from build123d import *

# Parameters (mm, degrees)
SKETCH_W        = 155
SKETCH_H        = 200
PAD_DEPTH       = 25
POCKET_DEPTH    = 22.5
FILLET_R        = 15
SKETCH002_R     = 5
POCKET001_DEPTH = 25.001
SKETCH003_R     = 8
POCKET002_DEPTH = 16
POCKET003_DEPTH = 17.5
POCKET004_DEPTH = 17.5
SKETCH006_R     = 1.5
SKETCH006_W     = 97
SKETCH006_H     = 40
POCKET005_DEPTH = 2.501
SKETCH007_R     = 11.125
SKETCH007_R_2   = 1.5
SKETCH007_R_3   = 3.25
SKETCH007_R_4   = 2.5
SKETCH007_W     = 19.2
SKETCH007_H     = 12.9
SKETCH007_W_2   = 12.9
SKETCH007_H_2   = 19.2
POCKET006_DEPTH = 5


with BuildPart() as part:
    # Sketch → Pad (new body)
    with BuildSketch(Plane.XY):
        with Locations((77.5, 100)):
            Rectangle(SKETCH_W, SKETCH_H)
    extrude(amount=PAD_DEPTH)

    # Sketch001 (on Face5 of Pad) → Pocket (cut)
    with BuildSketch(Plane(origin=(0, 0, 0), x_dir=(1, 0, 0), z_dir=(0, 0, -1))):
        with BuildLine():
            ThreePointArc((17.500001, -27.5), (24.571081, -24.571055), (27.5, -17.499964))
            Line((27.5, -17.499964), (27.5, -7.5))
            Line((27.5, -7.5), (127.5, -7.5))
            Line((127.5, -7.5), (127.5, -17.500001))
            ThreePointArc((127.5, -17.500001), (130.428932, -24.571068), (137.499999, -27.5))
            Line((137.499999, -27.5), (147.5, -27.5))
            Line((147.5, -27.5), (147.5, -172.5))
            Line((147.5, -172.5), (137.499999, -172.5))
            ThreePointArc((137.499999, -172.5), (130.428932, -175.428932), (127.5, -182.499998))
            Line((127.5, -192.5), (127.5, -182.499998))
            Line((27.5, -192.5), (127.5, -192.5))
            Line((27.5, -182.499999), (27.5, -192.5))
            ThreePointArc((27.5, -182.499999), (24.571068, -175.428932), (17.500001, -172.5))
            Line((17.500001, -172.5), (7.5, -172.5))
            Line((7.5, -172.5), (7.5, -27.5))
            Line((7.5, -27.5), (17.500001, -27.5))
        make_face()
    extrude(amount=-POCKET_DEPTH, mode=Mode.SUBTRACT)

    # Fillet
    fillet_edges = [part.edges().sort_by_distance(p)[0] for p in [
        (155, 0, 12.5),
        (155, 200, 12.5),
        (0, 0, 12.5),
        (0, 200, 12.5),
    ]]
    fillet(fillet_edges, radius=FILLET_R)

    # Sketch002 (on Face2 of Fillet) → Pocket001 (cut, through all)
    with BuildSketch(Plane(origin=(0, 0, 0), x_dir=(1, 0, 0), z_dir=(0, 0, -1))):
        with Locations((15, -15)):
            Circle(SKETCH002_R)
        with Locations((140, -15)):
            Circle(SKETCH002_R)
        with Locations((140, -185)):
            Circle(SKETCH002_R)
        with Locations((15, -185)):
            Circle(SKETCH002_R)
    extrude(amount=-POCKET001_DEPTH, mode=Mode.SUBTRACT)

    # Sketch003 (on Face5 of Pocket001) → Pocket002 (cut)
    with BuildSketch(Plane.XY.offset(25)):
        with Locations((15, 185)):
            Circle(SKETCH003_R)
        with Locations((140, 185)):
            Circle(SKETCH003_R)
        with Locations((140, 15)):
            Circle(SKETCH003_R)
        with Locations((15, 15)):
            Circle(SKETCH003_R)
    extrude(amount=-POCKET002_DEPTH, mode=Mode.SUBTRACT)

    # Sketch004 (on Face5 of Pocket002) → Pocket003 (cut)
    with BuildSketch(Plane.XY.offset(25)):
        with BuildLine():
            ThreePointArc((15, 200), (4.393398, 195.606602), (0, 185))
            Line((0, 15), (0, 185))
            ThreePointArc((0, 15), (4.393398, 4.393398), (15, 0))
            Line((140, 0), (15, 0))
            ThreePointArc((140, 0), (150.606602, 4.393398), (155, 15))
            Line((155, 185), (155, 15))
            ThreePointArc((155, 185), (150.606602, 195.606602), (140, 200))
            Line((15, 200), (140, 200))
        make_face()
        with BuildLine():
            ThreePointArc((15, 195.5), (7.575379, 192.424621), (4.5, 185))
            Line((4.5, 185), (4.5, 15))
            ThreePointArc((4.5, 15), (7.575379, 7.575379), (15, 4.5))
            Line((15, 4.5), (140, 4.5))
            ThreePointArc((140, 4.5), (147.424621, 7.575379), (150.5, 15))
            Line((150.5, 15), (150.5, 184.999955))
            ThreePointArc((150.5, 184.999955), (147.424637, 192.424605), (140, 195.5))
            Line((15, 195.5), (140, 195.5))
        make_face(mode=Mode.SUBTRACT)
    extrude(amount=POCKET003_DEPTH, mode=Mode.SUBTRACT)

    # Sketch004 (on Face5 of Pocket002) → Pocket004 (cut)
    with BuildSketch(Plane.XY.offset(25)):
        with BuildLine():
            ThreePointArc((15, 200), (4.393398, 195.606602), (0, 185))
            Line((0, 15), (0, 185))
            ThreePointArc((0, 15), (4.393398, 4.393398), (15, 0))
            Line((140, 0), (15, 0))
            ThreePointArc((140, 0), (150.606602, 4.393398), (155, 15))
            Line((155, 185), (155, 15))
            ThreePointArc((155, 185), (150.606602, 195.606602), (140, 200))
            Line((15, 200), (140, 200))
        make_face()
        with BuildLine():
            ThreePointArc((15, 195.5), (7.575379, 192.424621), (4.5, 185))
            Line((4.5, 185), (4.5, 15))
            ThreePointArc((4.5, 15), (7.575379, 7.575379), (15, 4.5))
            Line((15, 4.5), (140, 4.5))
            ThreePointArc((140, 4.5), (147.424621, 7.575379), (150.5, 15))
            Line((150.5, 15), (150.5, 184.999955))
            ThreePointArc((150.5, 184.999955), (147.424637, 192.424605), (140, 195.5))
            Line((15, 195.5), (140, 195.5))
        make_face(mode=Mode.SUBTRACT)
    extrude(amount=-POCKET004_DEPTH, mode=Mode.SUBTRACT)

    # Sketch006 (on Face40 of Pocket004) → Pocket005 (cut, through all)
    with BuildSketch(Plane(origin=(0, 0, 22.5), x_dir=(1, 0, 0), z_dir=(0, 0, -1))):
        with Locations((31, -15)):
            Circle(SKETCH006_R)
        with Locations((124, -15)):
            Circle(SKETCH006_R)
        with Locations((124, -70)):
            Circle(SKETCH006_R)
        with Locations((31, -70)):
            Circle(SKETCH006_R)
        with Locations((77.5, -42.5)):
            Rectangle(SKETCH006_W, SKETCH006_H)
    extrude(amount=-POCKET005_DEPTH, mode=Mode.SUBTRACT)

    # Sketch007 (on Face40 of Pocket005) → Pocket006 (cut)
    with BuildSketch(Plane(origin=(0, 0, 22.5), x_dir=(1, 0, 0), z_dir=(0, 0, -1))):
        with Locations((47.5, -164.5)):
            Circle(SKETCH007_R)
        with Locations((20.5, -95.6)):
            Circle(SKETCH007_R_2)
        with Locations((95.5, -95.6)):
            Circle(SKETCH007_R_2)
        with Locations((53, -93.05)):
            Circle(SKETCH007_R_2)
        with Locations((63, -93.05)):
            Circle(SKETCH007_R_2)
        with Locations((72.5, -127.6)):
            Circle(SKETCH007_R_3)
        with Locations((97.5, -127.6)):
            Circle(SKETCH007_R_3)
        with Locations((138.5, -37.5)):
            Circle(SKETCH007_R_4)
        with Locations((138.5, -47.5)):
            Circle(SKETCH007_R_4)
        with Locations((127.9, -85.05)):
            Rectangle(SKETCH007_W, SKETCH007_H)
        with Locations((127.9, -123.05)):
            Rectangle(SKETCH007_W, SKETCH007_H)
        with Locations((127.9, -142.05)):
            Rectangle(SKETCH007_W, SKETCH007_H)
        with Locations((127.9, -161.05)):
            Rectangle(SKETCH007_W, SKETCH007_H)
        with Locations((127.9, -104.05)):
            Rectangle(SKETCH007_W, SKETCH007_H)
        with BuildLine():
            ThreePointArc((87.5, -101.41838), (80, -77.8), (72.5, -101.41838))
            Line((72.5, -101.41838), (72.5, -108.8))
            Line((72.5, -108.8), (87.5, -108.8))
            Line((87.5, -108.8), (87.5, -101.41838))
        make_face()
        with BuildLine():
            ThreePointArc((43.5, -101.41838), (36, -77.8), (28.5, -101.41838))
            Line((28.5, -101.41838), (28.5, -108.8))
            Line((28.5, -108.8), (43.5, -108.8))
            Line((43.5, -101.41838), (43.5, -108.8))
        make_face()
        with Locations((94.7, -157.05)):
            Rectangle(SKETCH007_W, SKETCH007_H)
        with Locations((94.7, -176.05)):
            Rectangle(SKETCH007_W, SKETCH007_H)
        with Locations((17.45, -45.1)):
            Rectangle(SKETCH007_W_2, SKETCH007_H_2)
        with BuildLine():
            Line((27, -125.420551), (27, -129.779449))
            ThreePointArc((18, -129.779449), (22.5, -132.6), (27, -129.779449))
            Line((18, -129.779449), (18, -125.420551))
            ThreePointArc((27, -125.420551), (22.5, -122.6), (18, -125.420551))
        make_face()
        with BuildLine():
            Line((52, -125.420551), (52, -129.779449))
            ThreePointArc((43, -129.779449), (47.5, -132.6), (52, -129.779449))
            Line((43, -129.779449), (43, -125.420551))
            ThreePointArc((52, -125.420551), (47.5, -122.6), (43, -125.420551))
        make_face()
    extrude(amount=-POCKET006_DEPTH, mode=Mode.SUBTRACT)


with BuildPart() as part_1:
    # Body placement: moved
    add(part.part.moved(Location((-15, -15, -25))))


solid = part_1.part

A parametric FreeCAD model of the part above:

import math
import FreeCAD as App
import Part
import Sketcher
from FreeCAD import Vector


def edges_at(feature, points):
    """Names of the edges that pass closest to the given points."""
    edges = feature.Shape.Edges
    near = lambda p: min(range(len(edges)), key=lambda i: edges[i].distToShape(Part.Vertex(*p))[0])
    return sorted({f"Edge{near(p) + 1}" for p in points})


def add_polygon(sketch, points):
    """Adds a closed chain of lines whose ends are joined by coincident constraints."""
    first, n = sketch.GeometryCount, len(points)
    for a, b in zip(points, points[1:] + points[:1]):
        sketch.addGeometry(Part.LineSegment(App.Vector(*a, 0), App.Vector(*b, 0)), False)
    for i in range(n):
        sketch.addConstraint(Sketcher.Constraint("Coincident", first + i, 2, first + (i + 1) % n, 1))

doc = App.newDocument("Part")
params = doc.addObject("Spreadsheet::Sheet", "Params")
for row, (alias, value) in enumerate([
    ("sketch1_width", "155 mm"),
    ("sketch1_height", "200 mm"),
    ("pad1_length", "25 mm"),
    ("sketch2_radius", "9.999999 mm"),
    ("sketch2_width", "10.000001 mm"),
    ("sketch2_width2", "100 mm"),
    ("sketch2_height", "145 mm"),
    ("pocket1_length", "22.5 mm"),
    ("fillet_radius", "15 mm"),
    ("sketch3_diameter", "10 mm"),
    ("sketch4_diameter", "16 mm"),
    ("pocket3_length", "16 mm"),
    ("sketch5_radius", "14.999999 mm"),
    ("sketch5_radius2", "10.500001 mm"),
    ("sketch5_width", "125 mm"),
    ("sketch5_height", "170 mm"),
    ("pocket4_length", "17.5 mm"),
    ("sketch6_radius", "14.999999 mm"),
    ("sketch6_radius2", "10.500001 mm"),
    ("sketch6_width", "125 mm"),
    ("sketch6_height", "170 mm"),
    ("pocket5_length", "17.5 mm"),
    ("sketch7_diameter", "3 mm"),
    ("sketch7_width", "97 mm"),
    ("sketch7_height", "40 mm"),
    ("sketch8_diameter", "3 mm"),
    ("sketch8_diameter2", "5 mm"),
    ("sketch8_radius", "13 mm"),
    ("sketch8_radius2", "5 mm"),
    ("sketch8_diameter3", "6.5 mm"),
    ("pocket7_length", "5 mm"),
], start=1):
    params.set(f"A{row}", alias)
    params.set(f"B{row}", "=" + value)
    params.setAlias(f"B{row}", alias)

body = doc.addObject("PartDesign::Body", "Body")

# Sketch on XY plane
sketch1 = body.newObject("Sketcher::SketchObject", "Sketch")
sketch1.AttachmentSupport = (doc.getObject("XY_Plane"), [""])
sketch1.MapMode = "FlatFace"
add_polygon(sketch1, [(0, 200), (0, 0), (155, 0), (155, 200)])  # lines 0-3
sketch1.addConstraint([
    Sketcher.Constraint("Vertical", 0),
    Sketcher.Constraint("Horizontal", 1),
    Sketcher.Constraint("Vertical", 2),
    Sketcher.Constraint("Horizontal", 3),
    Sketcher.Constraint("Coincident", 0, 2, -1, 1),
    Sketcher.Constraint("DistanceX", 1, 1, 1, 2, 155.0),
    Sketcher.Constraint("DistanceY", 0, 2, 0, 1, 200.0),
])
sketch1.setExpression("Constraints[9]", "Params.sketch1_width")
sketch1.setExpression("Constraints[10]", "Params.sketch1_height")
pad1 = body.newObject("PartDesign::Pad", "Pad")
pad1.Profile = sketch1
pad1.setExpression("Length", "Params.pad1_length")

# Sketch on XY plane
sketch2 = body.newObject("Sketcher::SketchObject", "Sketch001")
sketch2.AttachmentSupport = (doc.getObject("XY_Plane"), [""])
sketch2.MapMode = "FlatFace"
sketch2.addGeometry([
    Part.ArcOfCircle(Part.Circle(Vector(18, 18, 0), Vector(0, 0, 1), 10), math.radians(0), math.radians(90)),  # 0
    Part.LineSegment(Vector(18, 28, 0), Vector(8, 28, 0)),  # 1
    Part.LineSegment(Vector(8, 28, 0), Vector(8, 172, 0)),  # 2
    Part.LineSegment(Vector(8, 172, 0), Vector(18, 172, 0)),  # 3
    Part.ArcOfCircle(Part.Circle(Vector(18, 182, 0), Vector(0, 0, 1), 10), math.radians(-90), math.radians(0)),  # 4
    Part.LineSegment(Vector(28, 182, 0), Vector(28, 192, 0)),  # 5
    Part.LineSegment(Vector(28, 192, 0), Vector(128, 192, 0)),  # 6
    Part.LineSegment(Vector(128, 192, 0), Vector(128, 182, 0)),  # 7
    Part.ArcOfCircle(Part.Circle(Vector(137, 182, 0), Vector(0, 0, 1), 10), math.radians(-180), math.radians(-90)),  # 8
    Part.LineSegment(Vector(137, 172, 0), Vector(148, 172, 0)),  # 9
    Part.LineSegment(Vector(148, 172, 0), Vector(148, 28, 0)),  # 10
    Part.LineSegment(Vector(148, 28, 0), Vector(137, 28, 0)),  # 11
    Part.ArcOfCircle(Part.Circle(Vector(137, 18, 0), Vector(0, 0, 1), 10), math.radians(90), math.radians(180)),  # 12
    Part.LineSegment(Vector(128, 18, 0), Vector(128, 8, 0)),  # 13
    Part.LineSegment(Vector(128, 8, 0), Vector(28, 8, 0)),  # 14
    Part.LineSegment(Vector(28, 8, 0), Vector(28, 17, 0)),  # 15
], False)
sketch2.addConstraint([
    Sketcher.Constraint("Tangent", 0, 2, 1, 1),
    Sketcher.Constraint("Coincident", 1, 2, 2, 1),
    Sketcher.Constraint("Coincident", 2, 2, 3, 1),
    Sketcher.Constraint("Tangent", 3, 2, 4, 1),
    Sketcher.Constraint("Tangent", 4, 2, 5, 1),
    Sketcher.Constraint("Coincident", 5, 2, 6, 1),
    Sketcher.Constraint("Coincident", 6, 2, 7, 1),
    Sketcher.Constraint("Tangent", 7, 2, 8, 1),
    Sketcher.Constraint("Tangent", 8, 2, 9, 1),
    Sketcher.Constraint("Coincident", 9, 2, 10, 1),
    Sketcher.Constraint("Coincident", 10, 2, 11, 1),
    Sketcher.Constraint("Tangent", 11, 2, 12, 1),
    Sketcher.Constraint("Tangent", 12, 2, 13, 1),
    Sketcher.Constraint("Coincident", 13, 2, 14, 1),
    Sketcher.Constraint("Coincident", 14, 2, 15, 1),
    Sketcher.Constraint("Coincident", 15, 2, 0, 1),
    Sketcher.Constraint("Horizontal", 1),
    Sketcher.Constraint("Vertical", 2),
    Sketcher.Constraint("Horizontal", 3),
    Sketcher.Constraint("Vertical", 5),
    Sketcher.Constraint("Horizontal", 6),
    Sketcher.Constraint("Vertical", 7),
    Sketcher.Constraint("Horizontal", 9),
    Sketcher.Constraint("Vertical", 10),
    Sketcher.Constraint("Horizontal", 11),
    Sketcher.Constraint("Vertical", 13),
    Sketcher.Constraint("Horizontal", 14),
    Sketcher.Constraint("Vertical", 15),
    Sketcher.Constraint("Equal", 0, 4),
    Sketcher.Constraint("Equal", 4, 8),
    Sketcher.Constraint("Equal", 8, 12),
    Sketcher.Constraint("Horizontal", 4, 3, 8, 3),
    Sketcher.Constraint("Horizontal", 0, 3, 12, 3),
    Sketcher.Constraint("Vertical", 0, 3, 4, 3),
    Sketcher.Constraint("Vertical", 8, 3, 12, 3),
    Sketcher.Constraint("Equal", 3, 9),
    Sketcher.Constraint("Equal", 11, 5),
    Sketcher.Constraint("Equal", 7, 13),
    Sketcher.Constraint("Radius", 0, 9.999999),
    Sketcher.Constraint("DistanceX", 1, 2, 1, 1, 10.000001),
    Sketcher.Constraint("DistanceX", 6, 1, 6, 2, 100.0),
    Sketcher.Constraint("DistanceY", 2, 1, 2, 2, 145.0),
    Sketcher.Constraint("DistanceX", -1, 1, 0, 3, 17.500001),
    Sketcher.Constraint("DistanceY", -1, 1, 0, 3, 17.500001),
    Sketcher.Constraint("DistanceY", 15, 1, 15, 2, 9.999964),
])
sketch2.setExpression("Constraints[38]", "Params.sketch2_radius")
sketch2.setExpression("Constraints[39]", "Params.sketch2_width")
sketch2.setExpression("Constraints[40]", "Params.sketch2_width2")
sketch2.setExpression("Constraints[41]", "Params.sketch2_height")
pocket1 = body.newObject("PartDesign::Pocket", "Pocket")
pocket1.Profile = sketch2
pocket1.setExpression("Length", "Params.pocket1_length")
pocket1.Reversed = True
doc.recompute()

fillet = body.newObject("PartDesign::Fillet", "Fillet")
fillet.Base = (pocket1, edges_at(pocket1, [
    (155, 0, 12.5),
    (155, 200, 12.5),
    (0, 0, 12.5),
    (0, 200, 12.5),
]))
fillet.setExpression("Radius", "Params.fillet_radius")

# Sketch on XY plane
sketch3 = body.newObject("Sketcher::SketchObject", "Sketch002")
sketch3.AttachmentSupport = (doc.getObject("XY_Plane"), [""])
sketch3.MapMode = "FlatFace"
sketch3.addGeometry([
    Part.Circle(Vector(15, 15, 0), Vector(0, 0, 1), 5),
    Part.Circle(Vector(140, 15, 0), Vector(0, 0, 1), 5),
    Part.Circle(Vector(140, 185, 0), Vector(0, 0, 1), 5),
    Part.Circle(Vector(15, 185, 0), Vector(0, 0, 1), 5),
], False)
sketch3.addConstraint([
    Sketcher.Constraint("Equal", 0, 1),
    Sketcher.Constraint("Equal", 1, 2),
    Sketcher.Constraint("Equal", 2, 3),
    Sketcher.Constraint("Horizontal", 0, 3, 1, 3),
    Sketcher.Constraint("Horizontal", 2, 3, 3, 3),
    Sketcher.Constraint("Vertical", 1, 3, 2, 3),
    Sketcher.Constraint("Vertical", 0, 3, 3, 3),
    Sketcher.Constraint("Diameter", 0, 10.0),
    Sketcher.Constraint("DistanceX", -1, 1, 0, 3, 15.0),
    Sketcher.Constraint("DistanceY", -1, 1, 0, 3, 15.0),
    Sketcher.Constraint("DistanceX", -1, 1, 1, 3, 140.0),
    Sketcher.Constraint("DistanceY", -1, 1, 2, 3, 185.0),
])
sketch3.setExpression("Constraints[7]", "Params.sketch3_diameter")
pocket2 = body.newObject("PartDesign::Pocket", "Pocket001")
pocket2.Profile = sketch3
pocket2.Type = "ThroughAll"
pocket2.Reversed = True

# Sketch on XY plane
sketch4 = body.newObject("Sketcher::SketchObject", "Sketch003")
sketch4.AttachmentSupport = (doc.getObject("XY_Plane"), [""])
sketch4.MapMode = "FlatFace"
sketch4.AttachmentOffset = App.Placement(Vector(0, 0, 25), App.Rotation())
sketch4.addGeometry([
    Part.Circle(Vector(15, 185, 0), Vector(0, 0, 1), 8),
    Part.Circle(Vector(140, 185, 0), Vector(0, 0, 1), 8),
    Part.Circle(Vector(140, 15, 0), Vector(0, 0, 1), 8),
    Part.Circle(Vector(15, 15, 0), Vector(0, 0, 1), 8),
], False)
sketch4.addConstraint([
    Sketcher.Constraint("Equal", 0, 1),
    Sketcher.Constraint("Equal", 1, 2),
    Sketcher.Constraint("Equal", 2, 3),
    Sketcher.Constraint("Horizontal", 0, 3, 1, 3),
    Sketcher.Constraint("Horizontal", 2, 3, 3, 3),
    Sketcher.Constraint("Vertical", 1, 3, 2, 3),
    Sketcher.Constraint("Vertical", 0, 3, 3, 3),
    Sketcher.Constraint("Diameter", 0, 16.0),
    Sketcher.Constraint("DistanceX", -1, 1, 0, 3, 15.0),
    Sketcher.Constraint("DistanceY", -1, 1, 0, 3, 185.0),
    Sketcher.Constraint("DistanceX", -1, 1, 1, 3, 140.0),
    Sketcher.Constraint("DistanceY", -1, 1, 2, 3, 15.0),
])
sketch4.setExpression("Constraints[7]", "Params.sketch4_diameter")
pocket3 = body.newObject("PartDesign::Pocket", "Pocket002")
pocket3.Profile = sketch4
pocket3.setExpression("Length", "Params.pocket3_length")

# Sketch on XY plane
sketch5 = body.newObject("Sketcher::SketchObject", "Sketch004")
sketch5.AttachmentSupport = (doc.getObject("XY_Plane"), [""])
sketch5.MapMode = "FlatFace"
sketch5.AttachmentOffset = App.Placement(Vector(0, 0, 25), App.Rotation())
sketch5.addGeometry([
    Part.ArcOfCircle(Part.Circle(Vector(15, 185, 0), Vector(0, 0, 1), 15), math.radians(90), math.radians(180)),  # 0
    Part.LineSegment(Vector(0, 185, 0), Vector(0, 15, 0)),  # 1
    Part.ArcOfCircle(Part.Circle(Vector(15, 15, 0), Vector(0, 0, 1), 15), math.radians(180), math.radians(270)),  # 2
    Part.LineSegment(Vector(15, 0, 0), Vector(140, 0, 0)),  # 3
    Part.ArcOfCircle(Part.Circle(Vector(140, 15, 0), Vector(0, 0, 1), 15), math.radians(-90), math.radians(0)),  # 4
    Part.LineSegment(Vector(155, 15, 0), Vector(155, 185, 0)),  # 5
    Part.ArcOfCircle(Part.Circle(Vector(140, 185, 0), Vector(0, 0, 1), 15), math.radians(0), math.radians(90)),  # 6
    Part.LineSegment(Vector(140, 200, 0), Vector(15, 200, 0)),  # 7
    Part.ArcOfCircle(Part.Circle(Vector(15, 185, 0), Vector(0, 0, 1), 11), math.radians(90), math.radians(180)),  # 8
    Part.LineSegment(Vector(15, 196, 0), Vector(140, 196, 0)),  # 9
    Part.ArcOfCircle(Part.Circle(Vector(140, 185, 0), Vector(0, 0, 1), 11), math.radians(0), math.radians(90)),  # 10
    Part.LineSegment(Vector(150, 185, 0), Vector(150, 15, 0)),  # 11
    Part.ArcOfCircle(Part.Circle(Vector(140, 15, 0), Vector(0, 0, 1), 11), math.radians(-90), math.radians(0)),  # 12
    Part.LineSegment(Vector(140, 4, 0), Vector(15, 4, 0)),  # 13
    Part.ArcOfCircle(Part.Circle(Vector(15, 15, 0), Vector(0, 0, 1), 11), math.radians(-180), math.radians(-90)),  # 14
    Part.LineSegment(Vector(4, 15, 0), Vector(4, 185, 0)),  # 15
], False)
sketch5.addConstraint([
    Sketcher.Constraint("Tangent", 0, 2, 1, 1),
    Sketcher.Constraint("Tangent", 1, 2, 2, 1),
    Sketcher.Constraint("Tangent", 2, 2, 3, 1),
    Sketcher.Constraint("Tangent", 3, 2, 4, 1),
    Sketcher.Constraint("Tangent", 4, 2, 5, 1),
    Sketcher.Constraint("Tangent", 5, 2, 6, 1),
    Sketcher.Constraint("Tangent", 6, 2, 7, 1),
    Sketcher.Constraint("Tangent", 7, 2, 0, 1),
    Sketcher.Constraint("Tangent", 8, 1, 9, 1),
    Sketcher.Constraint("Tangent", 9, 2, 10, 2),
    Sketcher.Constraint("Coincident", 10, 1, 11, 1),
    Sketcher.Constraint("Tangent", 11, 2, 12, 2),
    Sketcher.Constraint("Tangent", 12, 1, 13, 1),
    Sketcher.Constraint("Tangent", 13, 2, 14, 2),
    Sketcher.Constraint("Tangent", 14, 1, 15, 1),
    Sketcher.Constraint("Tangent", 15, 2, 8, 2),
    Sketcher.Constraint("Vertical", 1),
    Sketcher.Constraint("Horizontal", 3),
    Sketcher.Constraint("Vertical", 5),
    Sketcher.Constraint("Horizontal", 7),
    Sketcher.Constraint("Horizontal", 9),
    Sketcher.Constraint("Vertical", 11),
    Sketcher.Constraint("Horizontal", 13),
    Sketcher.Constraint("Vertical", 15),
    Sketcher.Constraint("Coincident", 8, 3, 0, 3),
    Sketcher.Constraint("Coincident", 10, 3, 6, 3),
    Sketcher.Constraint("Coincident", 12, 3, 4, 3),
    Sketcher.Constraint("Equal", 0, 2),
    Sketcher.Constraint("Equal", 2, 4),
    Sketcher.Constraint("Equal", 4, 6),
    Sketcher.Constraint("Equal", 12, 14),
    Sketcher.Constraint("PointOnObject", 0, 2, -2),
    Sketcher.Constraint("PointOnObject", 2, 2, -1),
    Sketcher.Constraint("Radius", 0, 14.999999),
    Sketcher.Constraint("Radius", 8, 10.500001),
    Sketcher.Constraint("DistanceX", 3, 1, 3, 2, 125.0),
    Sketcher.Constraint("DistanceY", 1, 2, 1, 1, 170.0),
    Sketcher.Constraint("DistanceY", 11, 2, 11, 1, 169.999955),
])
sketch5.setExpression("Constraints[33]", "Params.sketch5_radius")
sketch5.setExpression("Constraints[34]", "Params.sketch5_radius2")
sketch5.setExpression("Constraints[35]", "Params.sketch5_width")
sketch5.setExpression("Constraints[36]", "Params.sketch5_height")
pocket4 = body.newObject("PartDesign::Pocket", "Pocket003")
pocket4.Profile = sketch5
pocket4.setExpression("Length", "Params.pocket4_length")
pocket4.Reversed = True

# Sketch on XY plane
sketch6 = body.newObject("Sketcher::SketchObject", "Sketch005")
sketch6.AttachmentSupport = (doc.getObject("XY_Plane"), [""])
sketch6.MapMode = "FlatFace"
sketch6.AttachmentOffset = App.Placement(Vector(0, 0, 25), App.Rotation())
sketch6.addGeometry([
    Part.ArcOfCircle(Part.Circle(Vector(15, 185, 0), Vector(0, 0, 1), 15), math.radians(90), math.radians(180)),  # 0
    Part.LineSegment(Vector(0, 185, 0), Vector(0, 15, 0)),  # 1
    Part.ArcOfCircle(Part.Circle(Vector(15, 15, 0), Vector(0, 0, 1), 15), math.radians(180), math.radians(270)),  # 2
    Part.LineSegment(Vector(15, 0, 0), Vector(140, 0, 0)),  # 3
    Part.ArcOfCircle(Part.Circle(Vector(140, 15, 0), Vector(0, 0, 1), 15), math.radians(-90), math.radians(0)),  # 4
    Part.LineSegment(Vector(155, 15, 0), Vector(155, 185, 0)),  # 5
    Part.ArcOfCircle(Part.Circle(Vector(140, 185, 0), Vector(0, 0, 1), 15), math.radians(0), math.radians(90)),  # 6
    Part.LineSegment(Vector(140, 200, 0), Vector(15, 200, 0)),  # 7
    Part.ArcOfCircle(Part.Circle(Vector(15, 185, 0), Vector(0, 0, 1), 11), math.radians(90), math.radians(180)),  # 8
    Part.LineSegment(Vector(15, 196, 0), Vector(140, 196, 0)),  # 9
    Part.ArcOfCircle(Part.Circle(Vector(140, 185, 0), Vector(0, 0, 1), 11), math.radians(0), math.radians(90)),  # 10
    Part.LineSegment(Vector(150, 185, 0), Vector(150, 15, 0)),  # 11
    Part.ArcOfCircle(Part.Circle(Vector(140, 15, 0), Vector(0, 0, 1), 11), math.radians(-90), math.radians(0)),  # 12
    Part.LineSegment(Vector(140, 4, 0), Vector(15, 4, 0)),  # 13
    Part.ArcOfCircle(Part.Circle(Vector(15, 15, 0), Vector(0, 0, 1), 11), math.radians(-180), math.radians(-90)),  # 14
    Part.LineSegment(Vector(4, 15, 0), Vector(4, 185, 0)),  # 15
], False)
sketch6.addConstraint([
    Sketcher.Constraint("Tangent", 0, 2, 1, 1),
    Sketcher.Constraint("Tangent", 1, 2, 2, 1),
    Sketcher.Constraint("Tangent", 2, 2, 3, 1),
    Sketcher.Constraint("Tangent", 3, 2, 4, 1),
    Sketcher.Constraint("Tangent", 4, 2, 5, 1),
    Sketcher.Constraint("Tangent", 5, 2, 6, 1),
    Sketcher.Constraint("Tangent", 6, 2, 7, 1),
    Sketcher.Constraint("Tangent", 7, 2, 0, 1),
    Sketcher.Constraint("Tangent", 8, 1, 9, 1),
    Sketcher.Constraint("Tangent", 9, 2, 10, 2),
    Sketcher.Constraint("Coincident", 10, 1, 11, 1),
    Sketcher.Constraint("Tangent", 11, 2, 12, 2),
    Sketcher.Constraint("Tangent", 12, 1, 13, 1),
    Sketcher.Constraint("Tangent", 13, 2, 14, 2),
    Sketcher.Constraint("Tangent", 14, 1, 15, 1),
    Sketcher.Constraint("Tangent", 15, 2, 8, 2),
    Sketcher.Constraint("Vertical", 1),
    Sketcher.Constraint("Horizontal", 3),
    Sketcher.Constraint("Vertical", 5),
    Sketcher.Constraint("Horizontal", 7),
    Sketcher.Constraint("Horizontal", 9),
    Sketcher.Constraint("Vertical", 11),
    Sketcher.Constraint("Horizontal", 13),
    Sketcher.Constraint("Vertical", 15),
    Sketcher.Constraint("Coincident", 8, 3, 0, 3),
    Sketcher.Constraint("Coincident", 10, 3, 6, 3),
    Sketcher.Constraint("Coincident", 12, 3, 4, 3),
    Sketcher.Constraint("Equal", 0, 2),
    Sketcher.Constraint("Equal", 2, 4),
    Sketcher.Constraint("Equal", 4, 6),
    Sketcher.Constraint("Equal", 12, 14),
    Sketcher.Constraint("PointOnObject", 0, 2, -2),
    Sketcher.Constraint("PointOnObject", 2, 2, -1),
    Sketcher.Constraint("Radius", 0, 14.999999),
    Sketcher.Constraint("Radius", 8, 10.500001),
    Sketcher.Constraint("DistanceX", 3, 1, 3, 2, 125.0),
    Sketcher.Constraint("DistanceY", 1, 2, 1, 1, 170.0),
    Sketcher.Constraint("DistanceY", 11, 2, 11, 1, 169.999955),
])
sketch6.setExpression("Constraints[33]", "Params.sketch6_radius")
sketch6.setExpression("Constraints[34]", "Params.sketch6_radius2")
sketch6.setExpression("Constraints[35]", "Params.sketch6_width")
sketch6.setExpression("Constraints[36]", "Params.sketch6_height")
pocket5 = body.newObject("PartDesign::Pocket", "Pocket004")
pocket5.Profile = sketch6
pocket5.setExpression("Length", "Params.pocket5_length")

# Sketch on XY plane
sketch7 = body.newObject("Sketcher::SketchObject", "Sketch006")
sketch7.AttachmentSupport = (doc.getObject("XY_Plane"), [""])
sketch7.MapMode = "FlatFace"
sketch7.AttachmentOffset = App.Placement(Vector(0, 0, 22.5), App.Rotation())
sketch7.addGeometry(Part.Circle(Vector(31, 15, 0), Vector(0, 0, 1), 1.5), False)  # 0
sketch7.addGeometry(Part.Circle(Vector(124, 15, 0), Vector(0, 0, 1), 1.5), False)  # 1
sketch7.addGeometry(Part.Circle(Vector(124, 70, 0), Vector(0, 0, 1), 1.5), False)  # 2
sketch7.addGeometry(Part.Circle(Vector(31, 70, 0), Vector(0, 0, 1), 1.5), False)  # 3
add_polygon(sketch7, [(29, 22.5), (29, 62.5), (126, 62.5), (126, 22.5)])  # lines 4-7
sketch7.addConstraint([
    Sketcher.Constraint("Vertical", 4),
    Sketcher.Constraint("Horizontal", 5),
    Sketcher.Constraint("Vertical", 6),
    Sketcher.Constraint("Horizontal", 7),
    Sketcher.Constraint("Equal", 0, 1),
    Sketcher.Constraint("Equal", 1, 2),
    Sketcher.Constraint("Equal", 2, 3),
    Sketcher.Constraint("Horizontal", 0, 3, 1, 3),
    Sketcher.Constraint("Horizontal", 2, 3, 3, 3),
    Sketcher.Constraint("Vertical", 1, 3, 2, 3),
    Sketcher.Constraint("Vertical", 0, 3, 3, 3),
    Sketcher.Constraint("Diameter", 0, 3.0),
    Sketcher.Constraint("DistanceX", 5, 1, 5, 2, 97.0),
    Sketcher.Constraint("DistanceY", 4, 1, 4, 2, 40.0),
    Sketcher.Constraint("DistanceX", -1, 1, 0, 3, 31.0),
    Sketcher.Constraint("DistanceY", -1, 1, 0, 3, 15.0),
    Sketcher.Constraint("DistanceX", -1, 1, 1, 3, 124.0),
    Sketcher.Constraint("DistanceY", -1, 1, 2, 3, 70.0),
    Sketcher.Constraint("DistanceX", -1, 1, 4, 2, 29.0),
    Sketcher.Constraint("DistanceY", -1, 1, 4, 2, 62.5),
])
sketch7.setExpression("Constraints[15]", "Params.sketch7_diameter")
sketch7.setExpression("Constraints[16]", "Params.sketch7_width")
sketch7.setExpression("Constraints[17]", "Params.sketch7_height")
pocket6 = body.newObject("PartDesign::Pocket", "Pocket005")
pocket6.Profile = sketch7
pocket6.Type = "ThroughAll"
pocket6.Reversed = True

# Sketch on XY plane
sketch8 = body.newObject("Sketcher::SketchObject", "Sketch007")
sketch8.AttachmentSupport = (doc.getObject("XY_Plane"), [""])
sketch8.MapMode = "FlatFace"
sketch8.AttachmentOffset = App.Placement(Vector(0, 0, 22.5), App.Rotation())
sketch8.addGeometry(Part.Circle(Vector(47.5, 164.5, 0), Vector(0, 0, 1), 11.1), False)  # 0
sketch8.addGeometry(Part.Circle(Vector(20.5, 95.6, 0), Vector(0, 0, 1), 1.5), False)  # 1
sketch8.addGeometry(Part.Circle(Vector(95.5, 95.6, 0), Vector(0, 0, 1), 1.5), False)  # 2
sketch8.addGeometry(Part.Circle(Vector(53, 93, 0), Vector(0, 0, 1), 1.5), False)  # 3
sketch8.addGeometry(Part.Circle(Vector(63, 93, 0), Vector(0, 0, 1), 1.5), False)  # 4
sketch8.addGeometry(Part.Circle(Vector(72.5, 127.6, 0), Vector(0, 0, 1), 3.2), False)  # 5
sketch8.addGeometry(Part.Circle(Vector(97.5, 127.6, 0), Vector(0, 0, 1), 3.2), False)  # 6
sketch8.addGeometry(Part.Circle(Vector(138.5, 37.5, 0), Vector(0, 0, 1), 2.5), False)  # 7
sketch8.addGeometry(Part.Circle(Vector(138.5, 47.5, 0), Vector(0, 0, 1), 2.5), False)  # 8
add_polygon(sketch8, [(118.3, 78.6), (118.3, 91.5), (137.5, 91.5), (137.5, 78.6)])  # lines 9-12
add_polygon(sketch8, [(118.3, 116.6), (118.3, 129.5), (137.5, 129.5), (137.5, 116.6)])  # lines 13-16
add_polygon(sketch8, [(118.3, 135.6), (118.3, 148.5), (137.5, 148.5), (137.5, 135.6)])  # lines 17-20
add_polygon(sketch8, [(118.3, 154.6), (118.3, 167.5), (137.5, 167.5), (137.5, 154.6)])  # lines 21-24
add_polygon(sketch8, [(118.3, 97.6), (118.3, 110.5), (137.5, 110.5), (137.5, 97.6)])  # lines 25-28
sketch8.addGeometry(Part.ArcOfCircle(Part.Circle(Vector(80, 90.8, 0), Vector(0, 0, 1), 13), math.radians(125), math.radians(415)), False)  # 29
sketch8.addGeometry(Part.LineSegment(Vector(72.5, 101.4, 0), Vector(72.5, 108.8, 0)), False)  # 30
sketch8.addGeometry(Part.LineSegment(Vector(72.5, 108.8, 0), Vector(87.5, 108.8, 0)), False)  # 31
sketch8.addGeometry(Part.LineSegment(Vector(87.5, 108.8, 0), Vector(87.5, 101.4, 0)), False)  # 32
sketch8.addGeometry(Part.ArcOfCircle(Part.Circle(Vector(36, 90.8, 0), Vector(0, 0, 1), 13), math.radians(125), math.radians(415)), False)  # 33
sketch8.addGeometry(Part.LineSegment(Vector(28.5, 101.4, 0), Vector(28.5, 108.8, 0)), False)  # 34
sketch8.addGeometry(Part.LineSegment(Vector(28.5, 108.8, 0), Vector(43.5, 108.8, 0)), False)  # 35
sketch8.addGeometry(Part.LineSegment(Vector(43.5, 108.8, 0), Vector(43.5, 101.4, 0)), False)  # 36
add_polygon(sketch8, [(85.1, 150.6), (85.1, 163.5), (104.3, 163.5), (104.3, 150.6)])  # lines 37-40
add_polygon(sketch8, [(85.1, 169.6), (85.1, 182.5), (104.3, 182.5), (104.3, 169.6)])  # lines 41-44
add_polygon(sketch8, [(11, 35.5), (11, 54.7), (23.9, 54.7), (23.9, 35.5)])  # lines 45-48
sketch8.addGeometry(Part.LineSegment(Vector(27, 129.8, 0), Vector(27, 125.4, 0)), False)  # 49
sketch8.addGeometry(Part.ArcOfCircle(Part.Circle(Vector(22.5, 127.6, 0), Vector(0, 0, 1), 5), math.radians(-154), math.radians(-26)), False)  # 50
sketch8.addGeometry(Part.LineSegment(Vector(18, 125.4, 0), Vector(18, 129.8, 0)), False)  # 51
sketch8.addGeometry(Part.ArcOfCircle(Part.Circle(Vector(22.5, 127.6, 0), Vector(0, 0, 1), 5), math.radians(26), math.radians(154)), False)  # 52
sketch8.addGeometry(Part.LineSegment(Vector(52, 129.8, 0), Vector(52, 125.4, 0)), False)  # 53
sketch8.addGeometry(Part.ArcOfCircle(Part.Circle(Vector(47.5, 127.6, 0), Vector(0, 0, 1), 5), math.radians(-154), math.radians(-26)), False)  # 54
sketch8.addGeometry(Part.LineSegment(Vector(43, 125.4, 0), Vector(43, 129.8, 0)), False)  # 55
sketch8.addGeometry(Part.ArcOfCircle(Part.Circle(Vector(47.5, 127.6, 0), Vector(0, 0, 1), 5), math.radians(26), math.radians(154)), False)  # 56
sketch8.addConstraint([
    Sketcher.Constraint("Coincident", 29, 1, 30, 1),
    Sketcher.Constraint("Coincident", 30, 2, 31, 1),
    Sketcher.Constraint("Coincident", 31, 2, 32, 1),
    Sketcher.Constraint("Coincident", 32, 2, 29, 2),
    Sketcher.Constraint("Coincident", 33, 1, 34, 1),
    Sketcher.Constraint("Coincident", 34, 2, 35, 1),
    Sketcher.Constraint("Coincident", 35, 2, 36, 1),
    Sketcher.Constraint("Coincident", 36, 2, 33, 2),
    Sketcher.Constraint("Coincident", 49, 2, 50, 2),
    Sketcher.Constraint("Coincident", 50, 1, 51, 1),
    Sketcher.Constraint("Coincident", 51, 2, 52, 2),
    Sketcher.Constraint("Coincident", 52, 1, 49, 1),
    Sketcher.Constraint("Coincident", 53, 2, 54, 2),
    Sketcher.Constraint("Coincident", 54, 1, 55, 1),
    Sketcher.Constraint("Coincident", 55, 2, 56, 2),
    Sketcher.Constraint("Coincident", 56, 1, 53, 1),
    Sketcher.Constraint("Vertical", 9),
    Sketcher.Constraint("Horizontal", 10),
    Sketcher.Constraint("Vertical", 11),
    Sketcher.Constraint("Horizontal", 12),
    Sketcher.Constraint("Vertical", 13),
    Sketcher.Constraint("Horizontal", 14),
    Sketcher.Constraint("Vertical", 15),
    Sketcher.Constraint("Horizontal", 16),
    Sketcher.Constraint("Vertical", 17),
    Sketcher.Constraint("Horizontal", 18),
    Sketcher.Constraint("Vertical", 19),
    Sketcher.Constraint("Horizontal", 20),
    Sketcher.Constraint("Vertical", 21),
    Sketcher.Constraint("Horizontal", 22),
    Sketcher.Constraint("Vertical", 23),
    Sketcher.Constraint("Horizontal", 24),
    Sketcher.Constraint("Vertical", 25),
    Sketcher.Constraint("Horizontal", 26),
    Sketcher.Constraint("Vertical", 27),
    Sketcher.Constraint("Horizontal", 28),
    Sketcher.Constraint("Vertical", 30),
    Sketcher.Constraint("Horizontal", 31),
    Sketcher.Constraint("Vertical", 32),
    Sketcher.Constraint("Vertical", 34),
    Sketcher.Constraint("Horizontal", 35),
    Sketcher.Constraint("Vertical", 36),
    Sketcher.Constraint("Vertical", 37),
    Sketcher.Constraint("Horizontal", 38),
    Sketcher.Constraint("Vertical", 39),
    Sketcher.Constraint("Horizontal", 40),
    Sketcher.Constraint("Vertical", 41),
    Sketcher.Constraint("Horizontal", 42),
    Sketcher.Constraint("Vertical", 43),
    Sketcher.Constraint("Horizontal", 44),
    Sketcher.Constraint("Vertical", 45),
    Sketcher.Constraint("Horizontal", 46),
    Sketcher.Constraint("Vertical", 47),
    Sketcher.Constraint("Horizontal", 48),
    Sketcher.Constraint("Vertical", 49),
    Sketcher.Constraint("Vertical", 51),
    Sketcher.Constraint("Vertical", 53),
    Sketcher.Constraint("Vertical", 55),
    Sketcher.Constraint("Coincident", 52, 3, 50, 3),
    Sketcher.Constraint("Coincident", 56, 3, 54, 3),
    Sketcher.Constraint("Equal", 1, 2),
    Sketcher.Constraint("Equal", 2, 3),
    Sketcher.Constraint("Equal", 3, 4),
    Sketcher.Constraint("Equal", 5, 6),
    Sketcher.Constraint("Equal", 7, 8),
    Sketcher.Constraint("Equal", 29, 33),
    Sketcher.Constraint("Equal", 50, 52),
    Sketcher.Constraint("Equal", 52, 54),
    Sketcher.Constraint("Equal", 54, 56),
    Sketcher.Constraint("Horizontal", 1, 3, 2, 3),
    Sketcher.Constraint("Horizontal", 3, 3, 4, 3),
    Sketcher.Constraint("Horizontal", 5, 3, 6, 3),
    Sketcher.Constraint("Horizontal", 29, 3, 33, 3),
    Sketcher.Constraint("Horizontal", 6, 3, 50, 3),
    Sketcher.Constraint("Horizontal", 52, 3, 54, 3),
    Sketcher.Constraint("Horizontal", 29, 1, 32, 2),
    Sketcher.Constraint("Horizontal", 32, 2, 33, 1),
    Sketcher.Constraint("Horizontal", 31, 2, 34, 2),
    Sketcher.Constraint("Horizontal", 33, 1, 36, 2),
    Sketcher.Constraint("Horizontal", 49, 2, 50, 1),
    Sketcher.Constraint("Horizontal", 50, 1, 53, 2),
    Sketcher.Constraint("Horizontal", 53, 2, 54, 1),
    Sketcher.Constraint("Vertical", 7, 3, 8, 3),
    Sketcher.Constraint("Vertical", 0, 3, 54, 3),
    Sketcher.Constraint("Vertical", 12, 2, 13, 2),
    Sketcher.Constraint("Vertical", 11, 2, 14, 2),
    Sketcher.Constraint("Vertical", 16, 2, 17, 2),
    Sketcher.Constraint("Vertical", 15, 2, 18, 2),
    Sketcher.Constraint("Vertical", 20, 2, 21, 2),
    Sketcher.Constraint("Vertical", 19, 2, 22, 2),
    Sketcher.Constraint("Vertical", 24, 2, 25, 2),
    Sketcher.Constraint("Vertical", 23, 2, 26, 2),
    Sketcher.Constraint("Vertical", 5, 3, 29, 1),
    Sketcher.Constraint("Vertical", 40, 2, 41, 2),
    Sketcher.Constraint("Vertical", 39, 2, 42, 2),
    Sketcher.Constraint("Equal", 28, 38),
    Sketcher.Constraint("Equal", 48, 9),
    Sketcher.Constraint("Equal", 11, 13),
    Sketcher.Constraint("Equal", 15, 17),
    Sketcher.Constraint("Equal", 19, 21),
    Sketcher.Constraint("Equal", 23, 25),
    Sketcher.Constraint("Equal", 27, 37),
    Sketcher.Constraint("Equal", 39, 41),
    Sketcher.Constraint("Equal", 44, 45),
    Sketcher.Constraint("Diameter", 1, 3.0),
    Sketcher.Constraint("Diameter", 7, 5.0),
    Sketcher.Constraint("Radius", 29, 13.0),
    Sketcher.Constraint("Radius", 50, 5.0),
    Sketcher.Constraint("Diameter", 5, 6.5),
    Sketcher.Constraint("Diameter", 0, 22.25),
    Sketcher.Constraint("DistanceX", 31, 1, 31, 2, 15.0),
    Sketcher.Constraint("DistanceX", 10, 1, 10, 2, 19.2),
    Sketcher.Constraint("DistanceX", 46, 1, 46, 2, 12.9),
    Sketcher.Constraint("DistanceX", -1, 1, 3, 3, 53.0),
    Sketcher.Constraint("DistanceX", -1, 1, 4, 3, 63.0),
    Sketcher.Constraint("DistanceX", -1, 1, 29, 3, 80.0),
    Sketcher.Constraint("DistanceX", -1, 1, 33, 3, 36.0),
    Sketcher.Constraint("DistanceX", -1, 1, 45, 2, 11.0),
    Sketcher.Constraint("DistanceX", -1, 1, 49, 2, 27.0),
    Sketcher.Constraint("DistanceX", -1, 1, 50, 1, 18.0),
    Sketcher.Constraint("DistanceX", -1, 1, 53, 2, 52.0),
    Sketcher.Constraint("DistanceY", -1, 1, 0, 3, 164.5),
    Sketcher.Constraint("DistanceX", -1, 1, 1, 3, 20.5),
    Sketcher.Constraint("DistanceY", -1, 1, 1, 3, 95.6),
    Sketcher.Constraint("DistanceX", -1, 1, 2, 3, 95.5),
    Sketcher.Constraint("DistanceY", -1, 1, 5, 3, 127.6),
    Sketcher.Constraint("DistanceX", -1, 1, 6, 3, 97.5),
    Sketcher.Constraint("DistanceX", -1, 1, 7, 3, 138.5),
    Sketcher.Constraint("DistanceY", -1, 1, 7, 3, 37.5),
    Sketcher.Constraint("DistanceY", -1, 1, 8, 3, 47.5),
    Sketcher.Constraint("DistanceY", -1, 1, 29, 3, 90.8),
    Sketcher.Constraint("DistanceX", -1, 1, 9, 2, 118.3),
    Sketcher.Constraint("DistanceY", -1, 1, 9, 2, 91.5),
    Sketcher.Constraint("DistanceY", -1, 1, 13, 2, 129.5),
    Sketcher.Constraint("DistanceY", -1, 1, 17, 2, 148.5),
    Sketcher.Constraint("DistanceY", -1, 1, 21, 2, 167.5),
    Sketcher.Constraint("DistanceY", -1, 1, 25, 2, 110.5),
    Sketcher.Constraint("DistanceY", -1, 1, 30, 2, 108.8),
    Sketcher.Constraint("DistanceX", -1, 1, 37, 2, 85.1),
    Sketcher.Constraint("DistanceY", -1, 1, 37, 2, 163.5),
    Sketcher.Constraint("DistanceY", -1, 1, 41, 2, 182.5),
    Sketcher.Constraint("DistanceY", -1, 1, 45, 2, 54.7),
    Sketcher.Constraint("DistanceY", -1, 1, 3, 3, 93.05),
])
sketch8.setExpression("Constraints[136]", "Params.sketch8_diameter")
sketch8.setExpression("Constraints[137]", "Params.sketch8_diameter2")
sketch8.setExpression("Constraints[138]", "Params.sketch8_radius")
sketch8.setExpression("Constraints[139]", "Params.sketch8_radius2")
sketch8.setExpression("Constraints[140]", "Params.sketch8_diameter3")
pocket7 = body.newObject("PartDesign::Pocket", "Pocket006")
pocket7.Profile = sketch8
pocket7.setExpression("Length", "Params.pocket7_length")
pocket7.Reversed = True
body2 = doc.addObject("PartDesign::Body", "Body001")
doc.recompute()

body.Placement = App.Placement(Vector(-15, -15, -25), App.Rotation(Vector(0, 0, 1), 0))
boolean = body2.newObject("PartDesign::Boolean", "Boolean")
boolean.Type = "Fuse"
boolean.addObjects([body])

doc.recompute()
